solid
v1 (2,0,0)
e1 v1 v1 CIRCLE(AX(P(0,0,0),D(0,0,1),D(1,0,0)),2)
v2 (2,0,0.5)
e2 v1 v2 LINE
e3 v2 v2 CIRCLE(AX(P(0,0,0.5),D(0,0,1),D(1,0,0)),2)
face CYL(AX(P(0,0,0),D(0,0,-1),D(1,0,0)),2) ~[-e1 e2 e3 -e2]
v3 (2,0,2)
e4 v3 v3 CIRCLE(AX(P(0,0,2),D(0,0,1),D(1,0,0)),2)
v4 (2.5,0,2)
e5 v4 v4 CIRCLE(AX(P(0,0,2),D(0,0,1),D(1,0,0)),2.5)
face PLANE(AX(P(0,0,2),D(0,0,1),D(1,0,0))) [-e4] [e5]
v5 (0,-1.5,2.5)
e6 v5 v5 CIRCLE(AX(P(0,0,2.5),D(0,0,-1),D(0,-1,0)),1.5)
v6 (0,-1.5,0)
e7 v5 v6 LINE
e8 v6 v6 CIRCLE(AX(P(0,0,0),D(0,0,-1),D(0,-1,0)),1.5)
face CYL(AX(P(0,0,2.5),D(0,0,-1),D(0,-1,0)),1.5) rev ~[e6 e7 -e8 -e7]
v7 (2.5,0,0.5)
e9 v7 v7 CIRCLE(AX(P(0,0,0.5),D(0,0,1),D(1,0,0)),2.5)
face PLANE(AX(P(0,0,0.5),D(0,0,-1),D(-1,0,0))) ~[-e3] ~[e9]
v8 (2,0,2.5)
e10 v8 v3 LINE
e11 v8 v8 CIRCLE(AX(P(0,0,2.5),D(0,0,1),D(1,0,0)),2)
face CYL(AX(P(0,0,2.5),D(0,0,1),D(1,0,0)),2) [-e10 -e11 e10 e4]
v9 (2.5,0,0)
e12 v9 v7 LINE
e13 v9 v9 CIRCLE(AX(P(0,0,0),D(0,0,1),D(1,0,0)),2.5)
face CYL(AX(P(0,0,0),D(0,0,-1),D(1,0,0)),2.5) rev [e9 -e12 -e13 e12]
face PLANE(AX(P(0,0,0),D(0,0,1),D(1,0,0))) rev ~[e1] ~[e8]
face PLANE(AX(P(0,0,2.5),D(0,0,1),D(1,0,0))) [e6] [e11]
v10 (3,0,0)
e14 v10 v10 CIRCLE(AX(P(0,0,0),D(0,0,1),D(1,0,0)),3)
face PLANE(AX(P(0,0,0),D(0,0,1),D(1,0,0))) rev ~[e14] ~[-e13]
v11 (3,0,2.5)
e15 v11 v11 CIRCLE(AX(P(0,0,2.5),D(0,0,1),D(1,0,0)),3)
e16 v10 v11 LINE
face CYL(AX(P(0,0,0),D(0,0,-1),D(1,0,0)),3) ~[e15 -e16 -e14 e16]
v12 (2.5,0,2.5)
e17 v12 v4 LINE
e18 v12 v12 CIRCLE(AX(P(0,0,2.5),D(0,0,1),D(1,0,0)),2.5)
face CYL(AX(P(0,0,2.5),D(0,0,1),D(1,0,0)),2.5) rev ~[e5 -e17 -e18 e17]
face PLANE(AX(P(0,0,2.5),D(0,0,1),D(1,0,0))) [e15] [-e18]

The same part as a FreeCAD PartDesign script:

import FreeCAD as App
import Part
import Sketcher

V = App.Vector
Q = App.Units.Quantity

doc = App.newDocument("Part")
body = doc.addObject("PartDesign::Body", "Body")

sketch1 = body.newObject("Sketcher::SketchObject", "Sketch")
sketch1.AttachmentSupport = (doc.getObject("XY_Plane"), [""])
sketch1.MapMode = "FlatFace"
sketch1.addGeometry(Part.Circle(V(0, 0, 0), V(0, 0, 1), 3), False)
sketch1.addConstraint([
    Sketcher.Constraint("Coincident", 0, 3, -1, 1),
    Sketcher.Constraint("Diameter", 0, Q("6 mm")),
])
pad1 = body.newObject("PartDesign::Pad", "Pad")
pad1.Profile = sketch1
pad1.Length = 2.5

sketch2 = body.newObject("Sketcher::SketchObject", "Sketch001")
sketch2.AttachmentSupport = (doc.getObject("XY_Plane"), [""])
sketch2.MapMode = "FlatFace"
sketch2.AttachmentOffset = App.Placement(V(0, 0, 2.5), App.Rotation())
sketch2.addGeometry(Part.Circle(V(0, 0, 0), V(0, 0, 1), 1.5), False)
sketch2.addConstraint([
    Sketcher.Constraint("Coincident", 0, 3, -1, 1),
    Sketcher.Constraint("Diameter", 0, Q("3 mm")),
])
doc.recompute()
hole = body.newObject("PartDesign::Hole", "Hole")
hole.Profile = sketch2
hole.ThreadType = "None"
hole.Diameter = 3
hole.DepthType = "ThroughAll"

sketch3 = body.newObject("Sketcher::SketchObject", "Sketch002")
sketch3.AttachmentSupport = (doc.getObject("XY_Plane"), [""])
sketch3.MapMode = "FlatFace"
sketch3.AttachmentOffset = App.Placement(V(0, 0, 2.5), App.Rotation())
sketch3.addGeometry([
    Part.Circle(V(0, 0, 0), V(0, 0, 1), 2.5),
    Part.Circle(V(0, 0, 0), V(0, 0, 1), 2),
], False)
sketch3.addConstraint([
    Sketcher.Constraint("Coincident", 0, 3, -1, 1),
    Sketcher.Constraint("Coincident", 1, 3, -1, 1),
    Sketcher.Constraint("Diameter", 0, Q("5 mm")),
    Sketcher.Constraint("Diameter", 1, Q("4 mm")),
])
pocket1 = body.newObject("PartDesign::Pocket", "Pocket")
pocket1.Profile = sketch3
pocket1.Length = 0.5
doc.recompute()

datumplane = body.newObject("PartDesign::Plane", "DatumPlane")
datumplane.AttachmentSupport = (doc.getObject("XY_Plane"), [""])
datumplane.MapMode = "FlatFace"
datumplane.AttachmentOffset = App.Placement(V(0, 0, 1.25), App.Rotation())
mirrored = body.newObject("PartDesign::Mirrored", "Mirrored")
mirrored.Originals = [pocket1]
mirrored.MirrorPlane = (datumplane, [""])
body.Tip = mirrored

doc.recompute()
